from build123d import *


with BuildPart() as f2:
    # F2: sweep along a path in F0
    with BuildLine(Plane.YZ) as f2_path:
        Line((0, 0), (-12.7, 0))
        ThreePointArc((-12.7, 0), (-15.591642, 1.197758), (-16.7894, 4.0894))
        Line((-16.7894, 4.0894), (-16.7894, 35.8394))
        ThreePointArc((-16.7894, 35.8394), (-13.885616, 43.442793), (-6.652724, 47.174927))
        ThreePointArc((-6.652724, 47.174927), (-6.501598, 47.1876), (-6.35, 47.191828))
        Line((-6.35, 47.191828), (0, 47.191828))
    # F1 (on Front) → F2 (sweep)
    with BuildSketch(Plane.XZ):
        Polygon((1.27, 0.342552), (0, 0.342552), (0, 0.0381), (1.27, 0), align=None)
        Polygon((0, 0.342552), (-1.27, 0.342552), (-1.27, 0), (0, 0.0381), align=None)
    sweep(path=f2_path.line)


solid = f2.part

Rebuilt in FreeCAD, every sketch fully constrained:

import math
import FreeCAD as App
import Part
import Sketcher
from FreeCAD import Vector
Q = App.Units.Quantity

doc = App.newDocument("Part")
body = doc.addObject("PartDesign::Body", "Body")

# Sketch on XZ plane
sketch1 = doc.addObject("Sketcher::SketchObject", "Sketch")
body.addObject(sketch1)
sketch1.AttachmentSupport = (doc.XZ_Plane, [""])
sketch1.MapMode = "FlatFace"
sketch1.addGeometry([
    Part.LineSegment(Vector(1.27, 0.342552, 0), Vector(-1.27, 0.342552, 0)),  # 0
    Part.LineSegment(Vector(-1.27, 0.342552, 0), Vector(-1.27, 0, 0)),  # 1
    Part.LineSegment(Vector(-1.27, 0, 0), Vector(0, 0.0381, 0)),  # 2
    Part.LineSegment(Vector(0, 0.0381, 0), Vector(1.27, 0, 0)),  # 3
    Part.LineSegment(Vector(1.27, 0, 0), Vector(1.27, 0.342552, 0)),  # 4
], False)
sketch1.addConstraint([
    Sketcher.Constraint("Coincident", 0, 2, 1, 1),
    Sketcher.Constraint("Coincident", 1, 2, 2, 1),
    Sketcher.Constraint("Coincident", 2, 2, 3, 1),
    Sketcher.Constraint("Coincident", 3, 2, 4, 1),
    Sketcher.Constraint("Coincident", 4, 2, 0, 1),
    Sketcher.Constraint("Horizontal", 0),
    Sketcher.Constraint("Vertical", 1),
    Sketcher.Constraint("Vertical", 4),
    Sketcher.Constraint("Symmetric", 1, 2, 3, 2, -1, 1),
    Sketcher.Constraint("PointOnObject", 1, 2, -1),
    Sketcher.Constraint("PointOnObject", 2, 2, -2),
    Sketcher.Constraint("DistanceX", 0, 2, 0, 1, Q("0.1 in")),
    Sketcher.Constraint("DistanceY", -1, 1, 2, 2, Q("0.0015 in")),
    Sketcher.Constraint("DistanceY", 1, 2, 1, 1, 0.342552),
])

# Sketch on YZ plane
sketch2 = doc.addObject("Sketcher::SketchObject", "Sketch001")
body.addObject(sketch2)
sketch2.AttachmentSupport = (doc.YZ_Plane, [""])
sketch2.MapMode = "FlatFace"
sketch2.addGeometry([
    Part.LineSegment(Vector(0, 0, 0), Vector(-12.7, 0, 0)),  # 0
    Part.ArcOfCircle(Part.Circle(Vector(-12.699998, 4.089402, 0), Vector(0, 0, 1), 4.089402), math.radians(-179.999977), math.radians(-90.000023)),  # 1
    Part.LineSegment(Vector(-16.7894, 4.0894, 0), Vector(-16.7894, 35.8394, 0)),  # 2
    Part.ArcOfCircle(Part.Circle(Vector(-5.382978, 35.839398, 0), Vector(0, 0, 1), 11.406422), math.radians(96.391328), math.radians(179.999992)),  # 3
    Part.ArcOfCircle(Part.Circle(Vector(-6.35002, 44.472596, 0), Vector(0, 0, 1), 2.719232), math.radians(89.999583), math.radians(96.391399)),  # 4
    Part.LineSegment(Vector(-6.35, 47.191828, 0), Vector(0, 47.191828, 0)),  # 5
], False)
sketch2.addConstraint([
    Sketcher.Constraint("Tangent", 0, 2, 1, 2),
    Sketcher.Constraint("Tangent", 1, 1, 2, 1),
    Sketcher.Constraint("Tangent", 2, 2, 3, 2),
    Sketcher.Constraint("Tangent", 3, 1, 4, 2),
    Sketcher.Constraint("Coincident", 4, 1, 5, 1),
    Sketcher.Constraint("Horizontal", 0),
    Sketcher.Constraint("Vertical", 2),
    Sketcher.Constraint("Horizontal", 5),
    Sketcher.Constraint("Coincident", 0, 1, -1, 1),
    Sketcher.Constraint("PointOnObject", 5, 2, -2),
    Sketcher.Constraint("DistanceX", 0, 2, 0, 1, Q("0.5 in")),
    Sketcher.Constraint("Radius", 1, Q("0.1610001 in")),
    Sketcher.Constraint("DistanceX", 5, 1, 5, 2, Q("0.25 in")),
    Sketcher.Constraint("DistanceY", 2, 1, 2, 2, Q("1.25 in")),
    Sketcher.Constraint("Radius", 4, 2.719232),
    Sketcher.Constraint("Radius", 3, 11.406422),
    Sketcher.Constraint("DistanceY", 3, 1, 4, 1, 0.016901),
])
doc.recompute()

additivepipe = doc.addObject("PartDesign::AdditivePipe", "AdditivePipe")
body.addObject(additivepipe)
additivepipe.Profile = sketch1
additivepipe.Spine = (sketch2, ["Edge1", "Edge2", "Edge3", "Edge4", "Edge5", "Edge6"])

doc.recompute()
